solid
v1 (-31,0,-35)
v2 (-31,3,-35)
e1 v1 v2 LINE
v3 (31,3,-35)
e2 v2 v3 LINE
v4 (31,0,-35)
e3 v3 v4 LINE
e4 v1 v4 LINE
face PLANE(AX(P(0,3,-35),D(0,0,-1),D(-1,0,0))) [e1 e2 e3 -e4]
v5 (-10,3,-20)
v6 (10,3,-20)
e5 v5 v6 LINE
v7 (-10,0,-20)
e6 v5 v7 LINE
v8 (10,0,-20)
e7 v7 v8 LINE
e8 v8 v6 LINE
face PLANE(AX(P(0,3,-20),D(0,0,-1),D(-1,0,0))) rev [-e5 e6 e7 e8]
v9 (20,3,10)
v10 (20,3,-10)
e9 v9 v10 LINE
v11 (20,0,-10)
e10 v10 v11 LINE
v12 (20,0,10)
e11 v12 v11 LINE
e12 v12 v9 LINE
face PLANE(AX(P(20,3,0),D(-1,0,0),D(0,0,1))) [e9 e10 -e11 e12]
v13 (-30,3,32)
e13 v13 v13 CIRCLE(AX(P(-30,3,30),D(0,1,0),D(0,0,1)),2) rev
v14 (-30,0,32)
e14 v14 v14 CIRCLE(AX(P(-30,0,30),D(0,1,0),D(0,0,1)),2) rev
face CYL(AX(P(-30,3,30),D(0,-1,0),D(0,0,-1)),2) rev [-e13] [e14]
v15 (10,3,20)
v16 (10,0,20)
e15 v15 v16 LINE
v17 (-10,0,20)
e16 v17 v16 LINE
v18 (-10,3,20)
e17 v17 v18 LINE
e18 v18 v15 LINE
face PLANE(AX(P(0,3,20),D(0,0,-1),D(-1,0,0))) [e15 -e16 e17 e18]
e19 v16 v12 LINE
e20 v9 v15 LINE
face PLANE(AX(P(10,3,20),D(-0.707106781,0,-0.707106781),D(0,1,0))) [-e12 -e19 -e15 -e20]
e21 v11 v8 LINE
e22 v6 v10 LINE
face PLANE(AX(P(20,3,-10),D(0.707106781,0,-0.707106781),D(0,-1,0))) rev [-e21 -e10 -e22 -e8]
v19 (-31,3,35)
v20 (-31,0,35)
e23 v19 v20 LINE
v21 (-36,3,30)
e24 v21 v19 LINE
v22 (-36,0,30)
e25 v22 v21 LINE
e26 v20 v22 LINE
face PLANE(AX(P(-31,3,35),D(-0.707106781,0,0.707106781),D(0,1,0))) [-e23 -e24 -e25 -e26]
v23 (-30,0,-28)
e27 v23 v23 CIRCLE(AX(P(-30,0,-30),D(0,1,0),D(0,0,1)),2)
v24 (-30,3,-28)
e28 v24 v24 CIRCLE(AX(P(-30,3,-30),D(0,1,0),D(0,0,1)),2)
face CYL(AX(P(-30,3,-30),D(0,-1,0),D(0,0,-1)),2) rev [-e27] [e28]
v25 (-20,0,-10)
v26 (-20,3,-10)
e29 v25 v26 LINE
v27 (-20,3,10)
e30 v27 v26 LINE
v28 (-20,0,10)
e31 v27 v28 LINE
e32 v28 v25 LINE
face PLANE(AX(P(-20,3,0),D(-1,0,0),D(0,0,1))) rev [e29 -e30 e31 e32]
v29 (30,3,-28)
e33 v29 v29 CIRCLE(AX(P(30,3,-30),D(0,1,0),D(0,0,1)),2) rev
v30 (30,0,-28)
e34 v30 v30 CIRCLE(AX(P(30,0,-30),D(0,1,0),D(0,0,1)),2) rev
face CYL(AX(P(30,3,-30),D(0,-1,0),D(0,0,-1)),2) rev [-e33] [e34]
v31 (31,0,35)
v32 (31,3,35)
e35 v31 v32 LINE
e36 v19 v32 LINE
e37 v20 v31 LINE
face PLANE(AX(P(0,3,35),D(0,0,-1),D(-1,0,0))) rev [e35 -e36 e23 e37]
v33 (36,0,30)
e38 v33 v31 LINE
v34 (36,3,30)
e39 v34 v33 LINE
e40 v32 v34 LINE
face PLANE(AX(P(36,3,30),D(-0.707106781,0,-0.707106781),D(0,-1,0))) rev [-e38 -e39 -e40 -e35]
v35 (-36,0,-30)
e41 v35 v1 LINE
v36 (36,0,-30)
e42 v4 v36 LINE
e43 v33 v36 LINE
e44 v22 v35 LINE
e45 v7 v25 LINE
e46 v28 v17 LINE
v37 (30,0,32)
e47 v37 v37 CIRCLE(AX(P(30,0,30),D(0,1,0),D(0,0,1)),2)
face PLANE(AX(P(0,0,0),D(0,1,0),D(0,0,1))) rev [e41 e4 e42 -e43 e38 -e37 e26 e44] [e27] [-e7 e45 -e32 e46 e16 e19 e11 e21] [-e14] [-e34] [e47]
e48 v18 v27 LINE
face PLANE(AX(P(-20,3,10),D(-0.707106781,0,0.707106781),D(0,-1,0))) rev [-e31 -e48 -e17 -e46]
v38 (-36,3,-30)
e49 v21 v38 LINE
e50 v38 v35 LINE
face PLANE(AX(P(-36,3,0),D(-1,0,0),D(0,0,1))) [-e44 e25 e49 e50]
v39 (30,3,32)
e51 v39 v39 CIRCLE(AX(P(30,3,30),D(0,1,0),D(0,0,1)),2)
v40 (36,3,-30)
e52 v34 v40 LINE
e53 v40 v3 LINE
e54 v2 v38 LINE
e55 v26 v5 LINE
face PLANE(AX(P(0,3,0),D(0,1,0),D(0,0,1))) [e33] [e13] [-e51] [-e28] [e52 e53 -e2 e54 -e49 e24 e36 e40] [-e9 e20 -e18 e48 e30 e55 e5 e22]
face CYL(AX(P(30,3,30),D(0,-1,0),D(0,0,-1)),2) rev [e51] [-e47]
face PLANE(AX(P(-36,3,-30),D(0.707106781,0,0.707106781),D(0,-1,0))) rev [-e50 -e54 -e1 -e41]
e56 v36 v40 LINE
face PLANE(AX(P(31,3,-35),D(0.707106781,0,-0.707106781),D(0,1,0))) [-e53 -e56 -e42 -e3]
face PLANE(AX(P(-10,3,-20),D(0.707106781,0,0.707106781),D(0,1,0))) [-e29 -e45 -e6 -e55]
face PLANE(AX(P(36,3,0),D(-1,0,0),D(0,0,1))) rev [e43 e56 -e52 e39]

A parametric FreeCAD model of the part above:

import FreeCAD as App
import Part
import Sketcher
from FreeCAD import Vector
Q = App.Units.Quantity


def edges_at(feature, points):
    """Names of the edges that pass closest to the given points."""
    edges = feature.Shape.Edges
    near = lambda p: min(range(len(edges)), key=lambda i: edges[i].distToShape(Part.Vertex(*p))[0])
    return sorted({f"Edge{near(p) + 1}" for p in points})

doc = App.newDocument("Part")
params = doc.addObject("Spreadsheet::Sheet", "Params")
for row, (alias, value) in enumerate([
    ("sketch1_diameter", "4 mm"),
    ("sketch1_width", "72 mm"),
    ("sketch1_width2", "40 mm"),
    ("sketch1_height", "70 mm"),
    ("pad1_length", "3 mm"),
    ("chamfer_size", "10 mm"),
    ("chamfer2_size", "5 mm"),
], start=1):
    params.set(f"A{row}", alias)
    params.set(f"B{row}", "=" + value)
    params.setAlias(f"B{row}", alias)

body = doc.addObject("PartDesign::Body", "Body")

# Sketch on XZ plane
sketch1 = body.newObject("Sketcher::SketchObject", "Sketch")
sketch1.AttachmentSupport = (doc.getObject("XZ_Plane"), [""])
sketch1.MapMode = "FlatFace"
sketch1.addGeometry(Part.LineSegment(Vector(-36, -35, 0), Vector(-36, 35, 0)), False)
sketch1.addGeometry(Part.LineSegment(Vector(-36, 35, 0), Vector(36, 35, 0)), False)
sketch1.addGeometry(Part.LineSegment(Vector(36, 35, 0), Vector(36, -35, 0)), False)
sketch1.addGeometry(Part.LineSegment(Vector(36, -35, 0), Vector(-36, -35, 0)), False)
sketch1.addGeometry(Part.Circle(Vector(-30, 30, 0), Vector(0, 0, 1), 2), False)
sketch1.addGeometry(Part.Circle(Vector(30, 30, 0), Vector(0, 0, 1), 2), False)
sketch1.addGeometry(Part.Circle(Vector(-30, -30, 0), Vector(0, 0, 1), 2), False)
sketch1.addGeometry(Part.LineSegment(Vector(20, 20, 0), Vector(-20, 20, 0)), False)
sketch1.addGeometry(Part.LineSegment(Vector(-20, 20, 0), Vector(-20, -20, 0)), False)
sketch1.addGeometry(Part.LineSegment(Vector(-20, -20, 0), Vector(20, -20, 0)), False)
sketch1.addGeometry(Part.LineSegment(Vector(20, -20, 0), Vector(20, 20, 0)), False)
sketch1.addGeometry(Part.Circle(Vector(30, -30, 0), Vector(0, 0, 1), 2), False)
sketch1.addConstraint(Sketcher.Constraint("Coincident", 0, 2, 1, 1))
sketch1.addConstraint(Sketcher.Constraint("Coincident", 1, 2, 2, 1))
sketch1.addConstraint(Sketcher.Constraint("Coincident", 2, 2, 3, 1))
sketch1.addConstraint(Sketcher.Constraint("Coincident", 3, 2, 0, 1))
sketch1.addConstraint(Sketcher.Constraint("Coincident", 7, 2, 8, 1))
sketch1.addConstraint(Sketcher.Constraint("Coincident", 8, 2, 9, 1))
sketch1.addConstraint(Sketcher.Constraint("Coincident", 9, 2, 10, 1))
sketch1.addConstraint(Sketcher.Constraint("Coincident", 10, 2, 7, 1))
sketch1.addConstraint(Sketcher.Constraint("Vertical", 0))
sketch1.addConstraint(Sketcher.Constraint("Horizontal", 1))
sketch1.addConstraint(Sketcher.Constraint("Vertical", 2))
sketch1.addConstraint(Sketcher.Constraint("Horizontal", 3))
sketch1.addConstraint(Sketcher.Constraint("Horizontal", 7))
sketch1.addConstraint(Sketcher.Constraint("Vertical", 8))
sketch1.addConstraint(Sketcher.Constraint("Horizontal", 9))
sketch1.addConstraint(Sketcher.Constraint("Vertical", 10))
sketch1.addConstraint(Sketcher.Constraint("Equal", 4, 5))
sketch1.addConstraint(Sketcher.Constraint("Equal", 5, 6))
sketch1.addConstraint(Sketcher.Constraint("Equal", 6, 11))
sketch1.addConstraint(Sketcher.Constraint("Symmetric", 5, 3, 6, 3, -1, 1))
sketch1.addConstraint(Sketcher.Constraint("Symmetric", 4, 3, 11, 3, -1, 1))
sketch1.addConstraint(Sketcher.Constraint("Symmetric", 0, 2, 2, 2, -1, 1))
sketch1.addConstraint(Sketcher.Constraint("Symmetric", 7, 2, 9, 2, -1, 1))
sketch1.addConstraint(Sketcher.Constraint("Symmetric", 4, 3, 5, 3, -2))
sketch1.addConstraint(Sketcher.Constraint("Equal", 9, 8))
sketch1.addConstraint(Sketcher.Constraint("Diameter", 4, Q("4 mm")))
sketch1.addConstraint(Sketcher.Constraint("DistanceX", 1, 1, 1, 2, Q("72 mm")))
sketch1.addConstraint(Sketcher.Constraint("DistanceX", 7, 2, 7, 1, Q("40 mm")))
sketch1.addConstraint(Sketcher.Constraint("DistanceY", 0, 1, 0, 2, Q("70 mm")))
sketch1.addConstraint(Sketcher.Constraint("DistanceX", 4, 3, -1, 1, Q("30 mm")))
sketch1.addConstraint(Sketcher.Constraint("DistanceY", -1, 1, 4, 3, Q("30 mm")))
sketch1.setExpression("Constraints[25]", "Params.sketch1_diameter")
sketch1.setExpression("Constraints[26]", "Params.sketch1_width")
sketch1.setExpression("Constraints[27]", "Params.sketch1_width2")
sketch1.setExpression("Constraints[28]", "Params.sketch1_height")
pad1 = body.newObject("PartDesign::Pad", "Pad")
pad1.Profile = sketch1
pad1.setExpression("Length", "Params.pad1_length")
pad1.Reversed = True
doc.recompute()

chamfer = body.newObject("PartDesign::Chamfer", "Chamfer")
chamfer.Base = (pad1, edges_at(pad1, [
    (20, 1.5, -20),
    (-20, 1.5, -20),
    (-20, 1.5, 20),
    (20, 1.5, 20),
]))
chamfer.setExpression("Size", "Params.chamfer_size")
doc.recompute()

chamfer2 = body.newObject("PartDesign::Chamfer", "Chamfer001")
chamfer2.Base = (chamfer, edges_at(chamfer, [
    (-36, 1.5, 35),
    (-36, 1.5, -35),
    (36, 1.5, -35),
    (36, 1.5, 35),
]))
chamfer2.setExpression("Size", "Params.chamfer2_size")

doc.recompute()
